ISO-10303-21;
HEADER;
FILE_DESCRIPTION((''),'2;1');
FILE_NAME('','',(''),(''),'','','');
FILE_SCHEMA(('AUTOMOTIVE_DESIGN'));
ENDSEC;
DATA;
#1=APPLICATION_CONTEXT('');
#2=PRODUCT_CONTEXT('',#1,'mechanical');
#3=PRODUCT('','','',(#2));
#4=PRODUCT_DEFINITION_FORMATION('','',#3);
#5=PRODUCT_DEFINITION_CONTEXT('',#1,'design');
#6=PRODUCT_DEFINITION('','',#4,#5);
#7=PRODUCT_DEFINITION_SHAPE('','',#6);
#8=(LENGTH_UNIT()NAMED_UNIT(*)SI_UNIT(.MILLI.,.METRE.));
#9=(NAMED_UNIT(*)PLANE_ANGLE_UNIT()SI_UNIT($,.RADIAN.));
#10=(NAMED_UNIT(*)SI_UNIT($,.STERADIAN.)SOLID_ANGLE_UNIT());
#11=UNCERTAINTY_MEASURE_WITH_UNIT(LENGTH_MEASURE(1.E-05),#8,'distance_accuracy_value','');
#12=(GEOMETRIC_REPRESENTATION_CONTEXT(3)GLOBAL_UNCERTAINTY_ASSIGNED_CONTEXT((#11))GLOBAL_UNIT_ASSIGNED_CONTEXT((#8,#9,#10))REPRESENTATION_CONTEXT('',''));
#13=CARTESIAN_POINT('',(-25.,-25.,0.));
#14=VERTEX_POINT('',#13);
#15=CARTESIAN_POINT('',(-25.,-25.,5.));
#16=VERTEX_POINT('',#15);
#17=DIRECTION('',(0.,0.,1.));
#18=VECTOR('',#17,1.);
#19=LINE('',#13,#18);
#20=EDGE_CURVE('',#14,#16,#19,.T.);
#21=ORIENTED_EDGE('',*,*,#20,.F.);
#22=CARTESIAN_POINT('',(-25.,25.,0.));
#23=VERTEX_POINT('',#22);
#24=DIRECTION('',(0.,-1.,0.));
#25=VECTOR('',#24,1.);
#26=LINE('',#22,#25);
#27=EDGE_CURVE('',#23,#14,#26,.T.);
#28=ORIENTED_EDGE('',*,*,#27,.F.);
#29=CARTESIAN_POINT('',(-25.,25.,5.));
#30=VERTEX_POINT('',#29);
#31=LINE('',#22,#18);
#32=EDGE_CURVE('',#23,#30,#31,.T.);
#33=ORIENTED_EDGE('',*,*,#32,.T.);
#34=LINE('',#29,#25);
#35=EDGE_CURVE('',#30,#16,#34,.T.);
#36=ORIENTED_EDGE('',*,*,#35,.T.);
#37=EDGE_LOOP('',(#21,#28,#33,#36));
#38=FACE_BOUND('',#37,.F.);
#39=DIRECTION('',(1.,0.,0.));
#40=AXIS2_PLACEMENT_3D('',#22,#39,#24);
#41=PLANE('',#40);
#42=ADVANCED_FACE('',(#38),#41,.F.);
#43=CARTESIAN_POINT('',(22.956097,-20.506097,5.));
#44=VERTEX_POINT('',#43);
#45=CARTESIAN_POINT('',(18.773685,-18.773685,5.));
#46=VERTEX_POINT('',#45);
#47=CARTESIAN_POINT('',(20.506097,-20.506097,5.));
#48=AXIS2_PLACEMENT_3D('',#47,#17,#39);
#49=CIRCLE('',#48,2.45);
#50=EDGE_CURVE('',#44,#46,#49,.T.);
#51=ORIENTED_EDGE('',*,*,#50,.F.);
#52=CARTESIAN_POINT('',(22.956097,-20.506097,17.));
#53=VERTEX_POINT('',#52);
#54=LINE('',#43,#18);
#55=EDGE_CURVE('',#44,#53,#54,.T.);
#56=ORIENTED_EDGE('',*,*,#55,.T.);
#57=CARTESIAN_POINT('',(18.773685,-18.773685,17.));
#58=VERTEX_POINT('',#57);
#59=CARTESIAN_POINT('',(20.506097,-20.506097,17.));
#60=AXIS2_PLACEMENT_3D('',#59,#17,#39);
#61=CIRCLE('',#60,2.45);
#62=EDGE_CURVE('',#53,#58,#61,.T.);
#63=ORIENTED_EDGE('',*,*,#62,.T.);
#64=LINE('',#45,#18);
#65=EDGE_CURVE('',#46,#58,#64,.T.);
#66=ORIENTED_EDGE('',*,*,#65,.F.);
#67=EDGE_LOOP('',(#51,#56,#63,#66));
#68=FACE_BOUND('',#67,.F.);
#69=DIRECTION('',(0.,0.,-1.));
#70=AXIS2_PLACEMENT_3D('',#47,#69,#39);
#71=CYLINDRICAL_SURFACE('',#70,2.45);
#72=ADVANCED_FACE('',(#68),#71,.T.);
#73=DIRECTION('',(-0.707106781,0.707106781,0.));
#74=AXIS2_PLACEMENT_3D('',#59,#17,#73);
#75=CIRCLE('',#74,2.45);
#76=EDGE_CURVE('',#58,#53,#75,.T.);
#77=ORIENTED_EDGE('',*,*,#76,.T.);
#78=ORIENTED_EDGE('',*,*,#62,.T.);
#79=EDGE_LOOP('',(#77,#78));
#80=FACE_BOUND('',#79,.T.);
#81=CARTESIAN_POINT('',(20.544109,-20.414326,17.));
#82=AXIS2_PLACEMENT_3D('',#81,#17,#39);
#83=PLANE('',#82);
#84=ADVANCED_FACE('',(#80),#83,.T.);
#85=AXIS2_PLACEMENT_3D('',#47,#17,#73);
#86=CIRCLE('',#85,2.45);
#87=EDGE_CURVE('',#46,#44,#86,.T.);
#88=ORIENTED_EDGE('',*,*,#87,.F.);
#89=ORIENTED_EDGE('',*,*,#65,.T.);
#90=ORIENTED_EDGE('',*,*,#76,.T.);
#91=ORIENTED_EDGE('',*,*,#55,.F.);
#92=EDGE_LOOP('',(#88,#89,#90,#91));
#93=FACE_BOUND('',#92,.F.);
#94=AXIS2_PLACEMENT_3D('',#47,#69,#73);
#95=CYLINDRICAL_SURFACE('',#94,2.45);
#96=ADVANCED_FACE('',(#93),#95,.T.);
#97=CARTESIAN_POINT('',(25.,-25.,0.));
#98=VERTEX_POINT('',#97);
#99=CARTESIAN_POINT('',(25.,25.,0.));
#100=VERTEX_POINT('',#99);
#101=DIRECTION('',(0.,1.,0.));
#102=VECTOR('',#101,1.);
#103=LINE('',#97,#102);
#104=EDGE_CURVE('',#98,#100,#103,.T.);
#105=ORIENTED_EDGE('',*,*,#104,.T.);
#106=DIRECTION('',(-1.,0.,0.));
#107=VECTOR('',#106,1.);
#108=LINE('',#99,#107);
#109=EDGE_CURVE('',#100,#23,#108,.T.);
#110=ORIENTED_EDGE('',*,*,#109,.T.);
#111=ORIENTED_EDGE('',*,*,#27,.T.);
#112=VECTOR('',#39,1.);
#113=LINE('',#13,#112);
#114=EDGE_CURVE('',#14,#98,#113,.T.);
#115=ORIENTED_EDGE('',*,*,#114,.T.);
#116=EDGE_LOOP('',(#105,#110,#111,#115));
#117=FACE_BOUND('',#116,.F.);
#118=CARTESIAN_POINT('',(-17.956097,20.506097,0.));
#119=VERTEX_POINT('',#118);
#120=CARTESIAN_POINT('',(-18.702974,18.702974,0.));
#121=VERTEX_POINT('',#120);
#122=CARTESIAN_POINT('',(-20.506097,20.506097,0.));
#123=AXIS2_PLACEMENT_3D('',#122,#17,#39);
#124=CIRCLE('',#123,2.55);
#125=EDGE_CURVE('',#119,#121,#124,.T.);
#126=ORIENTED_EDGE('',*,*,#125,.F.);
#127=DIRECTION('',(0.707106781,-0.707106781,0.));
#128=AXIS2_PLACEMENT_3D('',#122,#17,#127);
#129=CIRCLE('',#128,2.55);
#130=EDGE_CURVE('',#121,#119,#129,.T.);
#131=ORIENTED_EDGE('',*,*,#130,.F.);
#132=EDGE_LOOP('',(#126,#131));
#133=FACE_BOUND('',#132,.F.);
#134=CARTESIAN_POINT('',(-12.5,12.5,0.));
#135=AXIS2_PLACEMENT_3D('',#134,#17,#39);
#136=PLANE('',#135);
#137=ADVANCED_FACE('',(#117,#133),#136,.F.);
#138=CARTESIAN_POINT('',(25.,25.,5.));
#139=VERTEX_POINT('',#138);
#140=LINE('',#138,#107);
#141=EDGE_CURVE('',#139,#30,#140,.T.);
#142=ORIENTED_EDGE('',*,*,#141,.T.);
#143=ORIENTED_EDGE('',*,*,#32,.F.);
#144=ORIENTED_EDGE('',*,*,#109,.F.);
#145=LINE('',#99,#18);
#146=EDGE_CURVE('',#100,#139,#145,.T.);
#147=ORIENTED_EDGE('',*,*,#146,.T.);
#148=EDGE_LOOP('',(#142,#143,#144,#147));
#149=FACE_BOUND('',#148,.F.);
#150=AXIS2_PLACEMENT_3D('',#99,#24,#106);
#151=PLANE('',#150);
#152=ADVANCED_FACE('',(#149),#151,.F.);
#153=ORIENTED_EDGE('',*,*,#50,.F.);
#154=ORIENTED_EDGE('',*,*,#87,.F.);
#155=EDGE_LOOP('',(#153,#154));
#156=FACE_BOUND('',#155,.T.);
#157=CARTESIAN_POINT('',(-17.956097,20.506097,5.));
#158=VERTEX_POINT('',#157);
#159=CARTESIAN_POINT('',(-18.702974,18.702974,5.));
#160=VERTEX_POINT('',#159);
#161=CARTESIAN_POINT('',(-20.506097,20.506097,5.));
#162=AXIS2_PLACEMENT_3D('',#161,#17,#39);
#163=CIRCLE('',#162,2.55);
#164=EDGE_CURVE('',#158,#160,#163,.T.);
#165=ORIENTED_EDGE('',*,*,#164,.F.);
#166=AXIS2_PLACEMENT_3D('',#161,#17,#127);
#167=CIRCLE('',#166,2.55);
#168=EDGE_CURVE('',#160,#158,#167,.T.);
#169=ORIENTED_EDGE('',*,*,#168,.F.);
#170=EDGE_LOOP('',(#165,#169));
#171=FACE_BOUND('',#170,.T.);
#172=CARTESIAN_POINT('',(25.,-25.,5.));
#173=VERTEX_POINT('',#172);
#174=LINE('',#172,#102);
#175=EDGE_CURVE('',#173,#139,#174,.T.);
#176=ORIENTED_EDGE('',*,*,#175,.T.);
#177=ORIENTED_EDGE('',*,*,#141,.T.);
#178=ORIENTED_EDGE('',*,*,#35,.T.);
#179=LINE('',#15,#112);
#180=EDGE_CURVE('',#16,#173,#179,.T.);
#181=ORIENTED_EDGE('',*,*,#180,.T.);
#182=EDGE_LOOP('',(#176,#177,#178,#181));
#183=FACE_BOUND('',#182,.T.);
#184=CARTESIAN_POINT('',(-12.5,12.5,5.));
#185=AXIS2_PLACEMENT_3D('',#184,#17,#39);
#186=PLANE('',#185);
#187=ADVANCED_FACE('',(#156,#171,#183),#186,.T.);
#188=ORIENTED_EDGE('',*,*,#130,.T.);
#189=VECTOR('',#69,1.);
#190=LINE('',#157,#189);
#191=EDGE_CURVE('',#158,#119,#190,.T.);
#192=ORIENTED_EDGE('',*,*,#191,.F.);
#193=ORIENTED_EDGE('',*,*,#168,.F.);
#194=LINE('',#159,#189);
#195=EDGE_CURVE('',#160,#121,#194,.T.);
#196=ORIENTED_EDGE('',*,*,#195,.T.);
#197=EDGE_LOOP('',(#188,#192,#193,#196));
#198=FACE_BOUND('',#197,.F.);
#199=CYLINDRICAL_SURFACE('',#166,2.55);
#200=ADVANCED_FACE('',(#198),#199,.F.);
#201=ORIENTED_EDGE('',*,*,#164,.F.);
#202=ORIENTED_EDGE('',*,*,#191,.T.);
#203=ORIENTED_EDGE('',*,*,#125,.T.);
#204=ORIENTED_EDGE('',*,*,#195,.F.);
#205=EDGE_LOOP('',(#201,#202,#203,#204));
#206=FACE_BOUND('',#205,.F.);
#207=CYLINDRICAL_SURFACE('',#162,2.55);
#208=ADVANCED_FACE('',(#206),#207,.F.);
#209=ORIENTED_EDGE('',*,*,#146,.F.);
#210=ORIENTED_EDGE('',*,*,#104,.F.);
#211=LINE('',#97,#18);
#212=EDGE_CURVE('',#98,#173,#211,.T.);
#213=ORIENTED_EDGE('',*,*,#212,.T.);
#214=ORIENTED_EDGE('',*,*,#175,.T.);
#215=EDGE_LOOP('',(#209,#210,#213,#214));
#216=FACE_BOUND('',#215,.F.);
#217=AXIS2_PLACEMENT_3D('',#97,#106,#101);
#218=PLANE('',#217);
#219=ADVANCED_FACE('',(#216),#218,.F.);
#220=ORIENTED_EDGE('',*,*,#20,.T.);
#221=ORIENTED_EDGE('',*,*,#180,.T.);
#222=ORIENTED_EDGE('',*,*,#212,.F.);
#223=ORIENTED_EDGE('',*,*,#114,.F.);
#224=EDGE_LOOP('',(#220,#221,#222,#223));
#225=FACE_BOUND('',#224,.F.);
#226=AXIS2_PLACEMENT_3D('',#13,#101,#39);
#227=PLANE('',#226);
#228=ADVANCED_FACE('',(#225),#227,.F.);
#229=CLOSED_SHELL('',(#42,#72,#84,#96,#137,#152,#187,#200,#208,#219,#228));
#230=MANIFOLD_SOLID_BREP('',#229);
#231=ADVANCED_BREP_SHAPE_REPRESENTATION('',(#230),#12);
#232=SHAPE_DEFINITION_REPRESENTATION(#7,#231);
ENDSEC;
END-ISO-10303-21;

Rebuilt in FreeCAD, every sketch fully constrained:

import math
import FreeCAD as App
import Part
import Sketcher
from FreeCAD import Vector
Q = App.Units.Quantity

doc = App.newDocument("Part")
body = doc.addObject("PartDesign::Body", "Body")

# Sketch on XY plane
sketch1 = body.newObject("Sketcher::SketchObject", "Sketch")
sketch1.AttachmentSupport = (doc.getObject("XY_Plane"), [""])
sketch1.MapMode = "FlatFace"
sketch1.addGeometry([
    Part.LineSegment(Vector(-25, 25, 0), Vector(-25, -25, 0)),
    Part.LineSegment(Vector(-25, -25, 0), Vector(25, -25, 0)),
    Part.LineSegment(Vector(25, -25, 0), Vector(25, 25, 0)),
    Part.LineSegment(Vector(25, 25, 0), Vector(-25, 25, 0)),
], False)
sketch1.addConstraint([
    Sketcher.Constraint("Coincident", 0, 2, 1, 1),
    Sketcher.Constraint("Coincident", 1, 2, 2, 1),
    Sketcher.Constraint("Coincident", 2, 2, 3, 1),
    Sketcher.Constraint("Coincident", 3, 2, 0, 1),
    Sketcher.Constraint("Vertical", 0),
    Sketcher.Constraint("Horizontal", 1),
    Sketcher.Constraint("Vertical", 2),
    Sketcher.Constraint("Horizontal", 3),
    Sketcher.Constraint("Symmetric", 0, 2, 2, 2, -1, 1),
    Sketcher.Constraint("Equal", 3, 0),
    Sketcher.Constraint("DistanceX", 1, 1, 1, 2, Q("50 mm")),
])
pad1 = body.newObject("PartDesign::Pad", "Pad")
pad1.Profile = sketch1
pad1.Length = 5

# Sketch on XY plane
sketch2 = body.newObject("Sketcher::SketchObject", "Sketch001")
sketch2.AttachmentSupport = (doc.getObject("XY_Plane"), [""])
sketch2.MapMode = "FlatFace"
sketch2.AttachmentOffset = App.Placement(Vector(0, 0, 5), App.Rotation())
sketch2.addGeometry([
    Part.ArcOfCircle(Part.Circle(Vector(20.5, -20.5, 0), Vector(0, 0, 1), 2.5), math.radians(135), math.radians(360)),
    Part.ArcOfCircle(Part.Circle(Vector(20.5, -20.5, 0), Vector(0, 0, 1), 2.5), math.radians(0), math.radians(135)),
], False)
sketch2.addConstraint([
    Sketcher.Constraint("Tangent", 0, 1, 1, 2),
    Sketcher.Constraint("Coincident", 1, 1, 0, 2),
    Sketcher.Constraint("Horizontal", 0, 3, 1, 1),
    Sketcher.Constraint("Radius", 0, Q("2.45 mm")),
    Sketcher.Constraint("DistanceX", 0, 1, 0, 3, Q("1.732412 mm")),
    Sketcher.Constraint("DistanceX", -1, 1, 0, 3, Q("20.506097 mm")),
    Sketcher.Constraint("DistanceY", 0, 3, -1, 1, Q("20.506097 mm")),
])
pad2 = body.newObject("PartDesign::Pad", "Pad001")
pad2.Profile = sketch2
pad2.Length = 12

# Sketch on XY plane
sketch3 = body.newObject("Sketcher::SketchObject", "Sketch002")
sketch3.AttachmentSupport = (doc.getObject("XY_Plane"), [""])
sketch3.MapMode = "FlatFace"
sketch3.AttachmentOffset = App.Placement(Vector(0, 0, 5), App.Rotation())
sketch3.addGeometry([
    Part.ArcOfCircle(Part.Circle(Vector(-20.5, 20.5, 0), Vector(0, 0, 1), 2.5), math.radians(0), math.radians(315)),
    Part.ArcOfCircle(Part.Circle(Vector(-20.5, 20.5, 0), Vector(0, 0, 1), 2.5), math.radians(-45), math.radians(0)),
], False)
sketch3.addConstraint([
    Sketcher.Constraint("Tangent", 0, 1, 1, 2),
    Sketcher.Constraint("Coincident", 1, 1, 0, 2),
    Sketcher.Constraint("Horizontal", 1, 3, 0, 1),
    Sketcher.Constraint("Radius", 0, Q("2.55 mm")),
    Sketcher.Constraint("DistanceX", 0, 3, -1, 1, Q("20.506097 mm")),
    Sketcher.Constraint("DistanceY", -1, 1, 0, 3, Q("20.506097 mm")),
    Sketcher.Constraint("DistanceX", 1, 1, -1, 1, Q("18.702974 mm")),
])
pocket1 = body.newObject("PartDesign::Pocket", "Pocket")
pocket1.Profile = sketch3
pocket1.Type = "ThroughAll"

doc.recompute()
